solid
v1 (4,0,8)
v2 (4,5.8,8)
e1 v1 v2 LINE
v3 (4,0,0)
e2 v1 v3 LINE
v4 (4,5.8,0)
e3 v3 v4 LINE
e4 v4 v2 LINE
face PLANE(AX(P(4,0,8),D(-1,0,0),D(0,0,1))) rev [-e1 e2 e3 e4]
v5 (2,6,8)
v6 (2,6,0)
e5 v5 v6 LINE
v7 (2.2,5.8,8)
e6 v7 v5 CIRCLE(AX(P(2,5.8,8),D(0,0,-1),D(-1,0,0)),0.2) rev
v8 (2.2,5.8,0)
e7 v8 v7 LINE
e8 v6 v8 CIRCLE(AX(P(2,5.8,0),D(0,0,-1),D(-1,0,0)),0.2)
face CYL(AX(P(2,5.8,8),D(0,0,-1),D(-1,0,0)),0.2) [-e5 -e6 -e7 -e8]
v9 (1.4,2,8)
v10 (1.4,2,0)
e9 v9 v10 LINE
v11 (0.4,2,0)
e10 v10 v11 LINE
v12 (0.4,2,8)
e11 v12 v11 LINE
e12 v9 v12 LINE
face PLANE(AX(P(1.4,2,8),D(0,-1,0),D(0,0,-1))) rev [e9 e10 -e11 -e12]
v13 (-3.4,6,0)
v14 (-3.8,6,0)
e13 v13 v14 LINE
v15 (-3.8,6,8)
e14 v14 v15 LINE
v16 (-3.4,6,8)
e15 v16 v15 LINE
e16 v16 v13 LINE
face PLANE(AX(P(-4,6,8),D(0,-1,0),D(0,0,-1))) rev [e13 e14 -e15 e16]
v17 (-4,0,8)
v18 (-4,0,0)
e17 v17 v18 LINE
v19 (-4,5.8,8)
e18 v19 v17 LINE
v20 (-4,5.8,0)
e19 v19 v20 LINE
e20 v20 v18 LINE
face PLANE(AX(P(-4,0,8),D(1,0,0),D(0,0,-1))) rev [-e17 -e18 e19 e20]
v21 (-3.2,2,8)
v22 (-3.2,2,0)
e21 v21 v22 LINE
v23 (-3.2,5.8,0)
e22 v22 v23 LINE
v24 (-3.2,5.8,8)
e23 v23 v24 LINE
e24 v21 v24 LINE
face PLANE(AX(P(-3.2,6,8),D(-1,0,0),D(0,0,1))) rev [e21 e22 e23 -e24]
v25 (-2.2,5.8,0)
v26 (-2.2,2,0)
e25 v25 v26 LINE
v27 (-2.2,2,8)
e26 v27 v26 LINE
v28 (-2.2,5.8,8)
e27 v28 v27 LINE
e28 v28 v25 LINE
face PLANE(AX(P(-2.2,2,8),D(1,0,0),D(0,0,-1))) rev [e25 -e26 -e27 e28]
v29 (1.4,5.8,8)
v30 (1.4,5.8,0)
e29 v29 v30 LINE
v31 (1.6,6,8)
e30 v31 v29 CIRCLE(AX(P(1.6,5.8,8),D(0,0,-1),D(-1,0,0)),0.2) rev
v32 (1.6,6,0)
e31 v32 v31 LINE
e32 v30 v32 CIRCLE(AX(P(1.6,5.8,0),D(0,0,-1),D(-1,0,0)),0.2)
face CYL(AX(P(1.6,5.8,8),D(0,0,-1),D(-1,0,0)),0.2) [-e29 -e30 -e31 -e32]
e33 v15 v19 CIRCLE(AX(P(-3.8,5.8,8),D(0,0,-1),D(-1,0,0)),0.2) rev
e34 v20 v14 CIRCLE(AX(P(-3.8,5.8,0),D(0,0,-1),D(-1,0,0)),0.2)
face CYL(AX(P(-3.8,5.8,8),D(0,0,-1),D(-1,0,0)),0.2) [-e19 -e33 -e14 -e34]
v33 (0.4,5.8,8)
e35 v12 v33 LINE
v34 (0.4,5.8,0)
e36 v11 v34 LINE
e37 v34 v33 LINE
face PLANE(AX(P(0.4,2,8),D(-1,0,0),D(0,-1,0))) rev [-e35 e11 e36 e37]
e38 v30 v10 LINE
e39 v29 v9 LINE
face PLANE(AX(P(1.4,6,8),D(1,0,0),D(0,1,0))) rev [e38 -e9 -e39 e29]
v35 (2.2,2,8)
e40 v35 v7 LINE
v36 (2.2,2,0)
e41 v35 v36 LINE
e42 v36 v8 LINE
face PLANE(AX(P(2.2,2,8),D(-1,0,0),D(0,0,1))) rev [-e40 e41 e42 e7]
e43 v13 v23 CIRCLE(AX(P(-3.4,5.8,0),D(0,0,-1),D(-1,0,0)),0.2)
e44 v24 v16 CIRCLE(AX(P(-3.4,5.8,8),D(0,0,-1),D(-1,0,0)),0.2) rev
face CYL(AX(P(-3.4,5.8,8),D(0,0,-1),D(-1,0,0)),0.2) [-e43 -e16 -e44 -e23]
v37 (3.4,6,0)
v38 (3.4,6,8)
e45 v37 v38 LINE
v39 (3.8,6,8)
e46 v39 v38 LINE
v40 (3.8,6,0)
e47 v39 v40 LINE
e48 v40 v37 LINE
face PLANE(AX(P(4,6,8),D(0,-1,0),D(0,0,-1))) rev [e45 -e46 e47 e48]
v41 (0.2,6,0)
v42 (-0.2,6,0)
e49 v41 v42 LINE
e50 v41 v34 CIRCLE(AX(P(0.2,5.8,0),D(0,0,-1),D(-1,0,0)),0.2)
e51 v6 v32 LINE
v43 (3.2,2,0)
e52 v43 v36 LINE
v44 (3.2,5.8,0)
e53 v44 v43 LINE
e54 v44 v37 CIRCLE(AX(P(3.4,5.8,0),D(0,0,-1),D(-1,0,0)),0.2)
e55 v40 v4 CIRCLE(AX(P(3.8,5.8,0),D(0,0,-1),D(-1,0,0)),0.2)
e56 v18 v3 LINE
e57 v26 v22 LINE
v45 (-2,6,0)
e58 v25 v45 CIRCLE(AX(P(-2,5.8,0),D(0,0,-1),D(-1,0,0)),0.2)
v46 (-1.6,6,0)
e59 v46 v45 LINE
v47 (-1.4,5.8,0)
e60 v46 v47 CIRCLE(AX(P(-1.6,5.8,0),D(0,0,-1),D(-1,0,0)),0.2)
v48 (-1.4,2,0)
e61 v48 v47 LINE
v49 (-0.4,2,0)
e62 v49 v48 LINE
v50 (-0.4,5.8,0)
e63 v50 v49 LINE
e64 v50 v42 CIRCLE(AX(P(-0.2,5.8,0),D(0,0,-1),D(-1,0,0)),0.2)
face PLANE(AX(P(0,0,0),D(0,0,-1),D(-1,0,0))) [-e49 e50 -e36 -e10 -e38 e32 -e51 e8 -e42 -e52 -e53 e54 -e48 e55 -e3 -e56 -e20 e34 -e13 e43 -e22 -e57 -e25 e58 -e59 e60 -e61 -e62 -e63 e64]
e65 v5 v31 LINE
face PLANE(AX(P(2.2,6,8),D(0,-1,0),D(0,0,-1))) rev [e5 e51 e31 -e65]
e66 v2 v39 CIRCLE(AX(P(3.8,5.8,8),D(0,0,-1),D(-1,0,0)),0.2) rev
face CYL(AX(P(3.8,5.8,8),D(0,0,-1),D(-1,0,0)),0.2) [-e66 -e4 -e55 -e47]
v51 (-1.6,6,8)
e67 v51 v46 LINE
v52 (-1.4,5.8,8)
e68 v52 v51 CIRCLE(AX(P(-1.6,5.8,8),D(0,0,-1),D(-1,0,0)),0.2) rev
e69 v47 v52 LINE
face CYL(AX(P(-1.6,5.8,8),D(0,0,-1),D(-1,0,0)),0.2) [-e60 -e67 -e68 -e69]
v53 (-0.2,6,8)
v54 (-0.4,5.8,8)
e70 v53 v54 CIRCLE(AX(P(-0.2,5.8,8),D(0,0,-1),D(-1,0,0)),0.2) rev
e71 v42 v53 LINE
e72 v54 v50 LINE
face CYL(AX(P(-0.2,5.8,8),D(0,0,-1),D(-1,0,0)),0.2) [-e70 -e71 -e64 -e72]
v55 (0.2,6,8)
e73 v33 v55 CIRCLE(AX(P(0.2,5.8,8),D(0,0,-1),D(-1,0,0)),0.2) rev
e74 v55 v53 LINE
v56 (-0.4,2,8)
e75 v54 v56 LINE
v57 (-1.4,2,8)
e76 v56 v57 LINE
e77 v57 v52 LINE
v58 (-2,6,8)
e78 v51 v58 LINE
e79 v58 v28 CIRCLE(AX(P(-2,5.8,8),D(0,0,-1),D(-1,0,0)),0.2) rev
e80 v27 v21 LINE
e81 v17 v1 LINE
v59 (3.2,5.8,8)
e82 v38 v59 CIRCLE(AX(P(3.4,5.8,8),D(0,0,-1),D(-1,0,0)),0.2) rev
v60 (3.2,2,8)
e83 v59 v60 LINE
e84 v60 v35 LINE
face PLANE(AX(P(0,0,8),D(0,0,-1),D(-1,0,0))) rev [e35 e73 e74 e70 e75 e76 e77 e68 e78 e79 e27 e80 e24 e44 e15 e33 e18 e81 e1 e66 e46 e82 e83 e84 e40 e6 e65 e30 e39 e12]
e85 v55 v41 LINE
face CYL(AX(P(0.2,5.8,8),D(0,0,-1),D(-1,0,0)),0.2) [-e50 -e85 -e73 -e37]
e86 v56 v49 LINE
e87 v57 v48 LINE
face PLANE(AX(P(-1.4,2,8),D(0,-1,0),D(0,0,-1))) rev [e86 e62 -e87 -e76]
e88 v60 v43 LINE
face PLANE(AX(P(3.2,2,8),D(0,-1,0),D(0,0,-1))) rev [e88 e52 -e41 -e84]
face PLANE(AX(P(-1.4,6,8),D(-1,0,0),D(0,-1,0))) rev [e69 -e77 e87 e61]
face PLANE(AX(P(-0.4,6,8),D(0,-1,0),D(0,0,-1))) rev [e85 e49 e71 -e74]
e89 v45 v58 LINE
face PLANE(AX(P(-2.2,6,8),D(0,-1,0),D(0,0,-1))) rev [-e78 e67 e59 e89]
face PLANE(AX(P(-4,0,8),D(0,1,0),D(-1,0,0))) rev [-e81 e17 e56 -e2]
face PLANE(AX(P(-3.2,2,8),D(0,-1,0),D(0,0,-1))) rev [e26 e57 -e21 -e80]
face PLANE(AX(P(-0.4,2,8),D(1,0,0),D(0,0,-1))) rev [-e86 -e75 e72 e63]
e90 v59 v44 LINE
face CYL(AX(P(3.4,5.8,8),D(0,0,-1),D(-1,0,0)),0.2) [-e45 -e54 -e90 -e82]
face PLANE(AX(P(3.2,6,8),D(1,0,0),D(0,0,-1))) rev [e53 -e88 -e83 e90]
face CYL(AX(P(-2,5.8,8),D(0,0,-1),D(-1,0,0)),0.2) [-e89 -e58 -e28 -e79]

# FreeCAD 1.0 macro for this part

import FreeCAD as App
import Part
import Sketcher
from FreeCAD import Vector


def edges_at(feature, points):
    """Names of the edges that pass closest to the given points."""
    edges = feature.Shape.Edges
    near = lambda p: min(range(len(edges)), key=lambda i: edges[i].distToShape(Part.Vertex(*p))[0])
    return sorted({f"Edge{near(p) + 1}" for p in points})

doc = App.newDocument("Part")
params = doc.addObject("Spreadsheet::Sheet", "Params")
for row, (alias, value) in enumerate([
    ("sketch1_width", "8 mm"),
    ("sketch1_width2", "1 mm"),
    ("sketch1_height", "6 mm"),
    ("sketch1_height2", "4 mm"),
    ("pad1_length", "8 mm"),
    ("fillet_radius", "0.2 mm"),
], start=1):
    params.set(f"A{row}", alias)
    params.set(f"B{row}", "=" + value)
    params.setAlias(f"B{row}", alias)

body = doc.addObject("PartDesign::Body", "Body")

# Sketch on XY plane
sketch1 = body.newObject("Sketcher::SketchObject", "Sketch")
sketch1.AttachmentSupport = (doc.getObject("XY_Plane"), [""])
sketch1.MapMode = "FlatFace"
sketch1.addGeometry([
    Part.LineSegment(Vector(-4, 0, 0), Vector(4, 0, 0)),  # 0
    Part.LineSegment(Vector(4, 0, 0), Vector(4, 6, 0)),  # 1
    Part.LineSegment(Vector(4, 6, 0), Vector(3.2, 6, 0)),  # 2
    Part.LineSegment(Vector(3.2, 6, 0), Vector(3.2, 2, 0)),  # 3
    Part.LineSegment(Vector(3.2, 2, 0), Vector(2.2, 2, 0)),  # 4
    Part.LineSegment(Vector(2.2, 2, 0), Vector(2.2, 6, 0)),  # 5
    Part.LineSegment(Vector(2.2, 6, 0), Vector(1.4, 6, 0)),  # 6
    Part.LineSegment(Vector(1.4, 6, 0), Vector(1.4, 2, 0)),  # 7
    Part.LineSegment(Vector(1.4, 2, 0), Vector(0.4, 2, 0)),  # 8
    Part.LineSegment(Vector(0.4, 2, 0), Vector(0.4, 6, 0)),  # 9
    Part.LineSegment(Vector(0.4, 6, 0), Vector(-0.4, 6, 0)),  # 10
    Part.LineSegment(Vector(-0.4, 6, 0), Vector(-0.4, 2, 0)),  # 11
    Part.LineSegment(Vector(-0.4, 2, 0), Vector(-1.4, 2, 0)),  # 12
    Part.LineSegment(Vector(-1.4, 2, 0), Vector(-1.4, 6, 0)),  # 13
    Part.LineSegment(Vector(-1.4, 6, 0), Vector(-2.2, 6, 0)),  # 14
    Part.LineSegment(Vector(-2.2, 6, 0), Vector(-2.2, 2, 0)),  # 15
    Part.LineSegment(Vector(-2.2, 2, 0), Vector(-3.2, 2, 0)),  # 16
    Part.LineSegment(Vector(-3.2, 2, 0), Vector(-3.2, 6, 0)),  # 17
    Part.LineSegment(Vector(-3.2, 6, 0), Vector(-4, 6, 0)),  # 18
    Part.LineSegment(Vector(-4, 6, 0), Vector(-4, 0, 0)),  # 19
], False)
sketch1.addConstraint([
    Sketcher.Constraint("Coincident", 0, 2, 1, 1),
    Sketcher.Constraint("Coincident", 1, 2, 2, 1),
    Sketcher.Constraint("Coincident", 2, 2, 3, 1),
    Sketcher.Constraint("Coincident", 3, 2, 4, 1),
    Sketcher.Constraint("Coincident", 4, 2, 5, 1),
    Sketcher.Constraint("Coincident", 5, 2, 6, 1),
    Sketcher.Constraint("Coincident", 6, 2, 7, 1),
    Sketcher.Constraint("Coincident", 7, 2, 8, 1),
    Sketcher.Constraint("Coincident", 8, 2, 9, 1),
    Sketcher.Constraint("Coincident", 9, 2, 10, 1),
    Sketcher.Constraint("Coincident", 10, 2, 11, 1),
    Sketcher.Constraint("Coincident", 11, 2, 12, 1),
    Sketcher.Constraint("Coincident", 12, 2, 13, 1),
    Sketcher.Constraint("Coincident", 13, 2, 14, 1),
    Sketcher.Constraint("Coincident", 14, 2, 15, 1),
    Sketcher.Constraint("Coincident", 15, 2, 16, 1),
    Sketcher.Constraint("Coincident", 16, 2, 17, 1),
    Sketcher.Constraint("Coincident", 17, 2, 18, 1),
    Sketcher.Constraint("Coincident", 18, 2, 19, 1),
    Sketcher.Constraint("Coincident", 19, 2, 0, 1),
    Sketcher.Constraint("Horizontal", 0),
    Sketcher.Constraint("Vertical", 1),
    Sketcher.Constraint("Horizontal", 2),
    Sketcher.Constraint("Vertical", 3),
    Sketcher.Constraint("Horizontal", 4),
    Sketcher.Constraint("Vertical", 5),
    Sketcher.Constraint("Horizontal", 6),
    Sketcher.Constraint("Vertical", 7),
    Sketcher.Constraint("Horizontal", 8),
    Sketcher.Constraint("Vertical", 9),
    Sketcher.Constraint("Horizontal", 10),
    Sketcher.Constraint("Vertical", 11),
    Sketcher.Constraint("Horizontal", 12),
    Sketcher.Constraint("Vertical", 13),
    Sketcher.Constraint("Horizontal", 14),
    Sketcher.Constraint("Vertical", 15),
    Sketcher.Constraint("Horizontal", 16),
    Sketcher.Constraint("Vertical", 17),
    Sketcher.Constraint("Horizontal", 18),
    Sketcher.Constraint("Vertical", 19),
    Sketcher.Constraint("Symmetric", 0, 2, 19, 2, -1, 1),
    Sketcher.Constraint("Symmetric", 8, 2, 11, 2, -2),
    Sketcher.Constraint("Symmetric", 6, 2, 13, 2, -2),
    Sketcher.Constraint("Symmetric", 4, 2, 15, 2, -2),
    Sketcher.Constraint("Symmetric", 2, 2, 17, 2, -2),
    Sketcher.Constraint("Horizontal", 2, 2, 5, 2),
    Sketcher.Constraint("Horizontal", 4, 2, 7, 2),
    Sketcher.Constraint("Horizontal", 6, 2, 9, 2),
    Sketcher.Constraint("Equal", 2, 6),
    Sketcher.Constraint("Equal", 4, 8),
    Sketcher.Constraint("Equal", 6, 10),
    Sketcher.Constraint("DistanceX", 0, 1, 0, 2, 8.0),
    Sketcher.Constraint("DistanceX", 4, 2, 4, 1, 1.0),
    Sketcher.Constraint("DistanceY", 1, 1, 1, 2, 6.0),
    Sketcher.Constraint("DistanceY", 3, 2, 3, 1, 4.0),
])
sketch1.setExpression("Constraints[51]", "Params.sketch1_width")
sketch1.setExpression("Constraints[52]", "Params.sketch1_width2")
sketch1.setExpression("Constraints[53]", "Params.sketch1_height")
sketch1.setExpression("Constraints[54]", "Params.sketch1_height2")
pad1 = body.newObject("PartDesign::Pad", "Pad")
pad1.Profile = sketch1
pad1.setExpression("Length", "Params.pad1_length")
doc.recompute()

fillet = body.newObject("PartDesign::Fillet", "Fillet")
fillet.Base = (pad1, edges_at(pad1, [
    (-4, 6, 4),
    (-3.2, 6, 4),
    (-2.2, 6, 4),
    (-1.4, 6, 4),
    (-0.4, 6, 4),
    (0.4, 6, 4),
    (1.4, 6, 4),
    (2.2, 6, 4),
    (3.2, 6, 4),
    (4, 6, 4),
]))
fillet.setExpression("Radius", "Params.fillet_radius")

doc.recompute()
